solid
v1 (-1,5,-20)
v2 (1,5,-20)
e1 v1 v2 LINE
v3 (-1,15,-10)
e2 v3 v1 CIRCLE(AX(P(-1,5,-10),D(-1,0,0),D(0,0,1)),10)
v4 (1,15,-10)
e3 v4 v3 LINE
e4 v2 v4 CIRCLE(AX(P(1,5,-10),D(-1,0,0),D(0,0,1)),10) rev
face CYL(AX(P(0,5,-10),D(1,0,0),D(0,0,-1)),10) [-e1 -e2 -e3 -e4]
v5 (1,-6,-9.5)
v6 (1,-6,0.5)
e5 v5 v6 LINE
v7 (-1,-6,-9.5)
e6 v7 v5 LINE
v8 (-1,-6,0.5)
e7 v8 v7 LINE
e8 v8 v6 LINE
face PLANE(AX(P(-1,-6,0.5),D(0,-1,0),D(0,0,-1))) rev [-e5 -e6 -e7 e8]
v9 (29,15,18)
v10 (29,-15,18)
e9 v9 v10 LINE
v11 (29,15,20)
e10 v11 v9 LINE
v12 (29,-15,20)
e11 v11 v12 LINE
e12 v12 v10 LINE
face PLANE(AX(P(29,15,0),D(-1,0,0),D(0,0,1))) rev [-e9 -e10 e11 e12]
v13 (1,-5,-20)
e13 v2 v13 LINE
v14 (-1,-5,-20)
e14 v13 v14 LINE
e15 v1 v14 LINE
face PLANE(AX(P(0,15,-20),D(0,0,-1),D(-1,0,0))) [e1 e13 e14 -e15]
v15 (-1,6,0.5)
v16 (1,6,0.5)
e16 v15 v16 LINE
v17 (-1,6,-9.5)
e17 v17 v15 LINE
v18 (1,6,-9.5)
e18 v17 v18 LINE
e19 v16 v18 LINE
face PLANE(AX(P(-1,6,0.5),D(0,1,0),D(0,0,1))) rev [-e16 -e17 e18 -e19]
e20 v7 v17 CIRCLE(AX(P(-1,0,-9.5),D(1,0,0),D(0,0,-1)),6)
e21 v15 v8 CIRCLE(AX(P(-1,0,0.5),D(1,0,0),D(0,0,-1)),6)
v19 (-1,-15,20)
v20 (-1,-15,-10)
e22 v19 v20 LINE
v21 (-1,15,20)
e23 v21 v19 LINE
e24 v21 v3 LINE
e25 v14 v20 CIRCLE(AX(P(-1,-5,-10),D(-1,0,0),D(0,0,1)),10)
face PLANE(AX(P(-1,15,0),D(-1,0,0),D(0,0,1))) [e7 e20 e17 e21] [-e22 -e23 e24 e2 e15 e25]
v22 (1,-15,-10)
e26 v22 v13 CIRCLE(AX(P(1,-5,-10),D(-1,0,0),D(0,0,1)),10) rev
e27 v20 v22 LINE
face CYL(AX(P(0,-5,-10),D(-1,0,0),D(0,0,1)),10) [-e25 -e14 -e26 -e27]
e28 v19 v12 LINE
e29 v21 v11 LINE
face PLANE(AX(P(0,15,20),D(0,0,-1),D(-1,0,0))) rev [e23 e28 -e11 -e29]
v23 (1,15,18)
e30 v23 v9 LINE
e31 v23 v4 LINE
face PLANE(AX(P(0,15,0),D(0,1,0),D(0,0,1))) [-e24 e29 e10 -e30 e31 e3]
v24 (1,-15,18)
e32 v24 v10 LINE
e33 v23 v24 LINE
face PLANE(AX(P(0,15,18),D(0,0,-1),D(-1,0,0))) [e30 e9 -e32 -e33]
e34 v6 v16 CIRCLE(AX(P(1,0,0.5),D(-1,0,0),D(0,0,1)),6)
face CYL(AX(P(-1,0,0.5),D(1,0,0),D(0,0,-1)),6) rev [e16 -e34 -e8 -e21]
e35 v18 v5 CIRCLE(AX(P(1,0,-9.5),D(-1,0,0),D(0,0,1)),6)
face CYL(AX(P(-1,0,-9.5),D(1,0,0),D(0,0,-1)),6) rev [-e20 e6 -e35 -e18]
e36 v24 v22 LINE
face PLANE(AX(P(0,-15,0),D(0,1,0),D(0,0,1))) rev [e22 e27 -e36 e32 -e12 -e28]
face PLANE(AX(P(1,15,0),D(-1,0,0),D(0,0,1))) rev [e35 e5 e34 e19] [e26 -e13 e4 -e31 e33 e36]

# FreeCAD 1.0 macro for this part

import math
import FreeCAD as App
import Part
import Sketcher
from FreeCAD import Vector


def edges_at(feature, points):
    """Names of the edges that pass closest to the given points."""
    edges = feature.Shape.Edges
    near = lambda p: min(range(len(edges)), key=lambda i: edges[i].distToShape(Part.Vertex(*p))[0])
    return sorted({f"Edge{near(p) + 1}" for p in points})

doc = App.newDocument("Part")
body = doc.addObject("PartDesign::Body", "Body")

# Sketch on XZ plane
sketch1 = body.newObject("Sketcher::SketchObject", "Sketch")
sketch1.AttachmentSupport = (doc.getObject("XZ_Plane"), [""])
sketch1.MapMode = "FlatFace"
sketch1.addGeometry(Part.LineSegment(Vector(-1, -20, 0), Vector(-1, 20, 0)), False)
sketch1.addGeometry(Part.LineSegment(Vector(-1, 20, 0), Vector(29, 20, 0)), False)
sketch1.addGeometry(Part.LineSegment(Vector(29, 20, 0), Vector(29, 18, 0)), False)
sketch1.addGeometry(Part.LineSegment(Vector(29, 18, 0), Vector(1, 18, 0)), False)
sketch1.addGeometry(Part.LineSegment(Vector(1, 18, 0), Vector(1, -20, 0)), False)
sketch1.addGeometry(Part.LineSegment(Vector(1, -20, 0), Vector(-1, -20, 0)), False)
sketch1.addConstraint(Sketcher.Constraint("Coincident", 0, 2, 1, 1))
sketch1.addConstraint(Sketcher.Constraint("Coincident", 1, 2, 2, 1))
sketch1.addConstraint(Sketcher.Constraint("Coincident", 2, 2, 3, 1))
sketch1.addConstraint(Sketcher.Constraint("Coincident", 3, 2, 4, 1))
sketch1.addConstraint(Sketcher.Constraint("Coincident", 4, 2, 5, 1))
sketch1.addConstraint(Sketcher.Constraint("Coincident", 5, 2, 0, 1))
sketch1.addConstraint(Sketcher.Constraint("Vertical", 0))
sketch1.addConstraint(Sketcher.Constraint("Horizontal", 1))
sketch1.addConstraint(Sketcher.Constraint("Vertical", 2))
sketch1.addConstraint(Sketcher.Constraint("Horizontal", 3))
sketch1.addConstraint(Sketcher.Constraint("Vertical", 4))
sketch1.addConstraint(Sketcher.Constraint("Horizontal", 5))
sketch1.addConstraint(Sketcher.Constraint("Symmetric", 0, 2, 4, 2, -1, 1))
sketch1.addConstraint(Sketcher.Constraint("Equal", 5, 2))
sketch1.addConstraint(Sketcher.Constraint("DistanceX", 1, 1, 1, 2, 30.0))
sketch1.addConstraint(Sketcher.Constraint("DistanceX", 3, 2, 3, 1, 28.0))
sketch1.addConstraint(Sketcher.Constraint("DistanceY", 0, 1, 0, 2, 40.0))
pad1 = body.newObject("PartDesign::Pad", "Pad")
pad1.Profile = sketch1
pad1.Length = 30
pad1.Midplane = True
doc.recompute()

fillet = body.newObject("PartDesign::Fillet", "Fillet")
fillet.Base = (pad1, edges_at(pad1, [(0, 15, -20), (0, -15, -20)]))
fillet.Radius = 10

# Sketch on YZ plane
sketch2 = body.newObject("Sketcher::SketchObject", "Sketch001")
sketch2.AttachmentSupport = (doc.getObject("YZ_Plane"), [""])
sketch2.MapMode = "FlatFace"
sketch2.AttachmentOffset = App.Placement(Vector(0, 0, 1), App.Rotation())
sketch2.addGeometry(Part.LineSegment(Vector(6, -10, 0), Vector(6, 0, 0)), False)
sketch2.addGeometry(Part.ArcOfCircle(Part.Circle(Vector(0, 0, 0), Vector(0, 0, 1), 6), math.radians(0), math.radians(180)), False)
sketch2.addGeometry(Part.LineSegment(Vector(-6, 0, 0), Vector(-6, -10, 0)), False)
sketch2.addGeometry(Part.ArcOfCircle(Part.Circle(Vector(0, -10, 0), Vector(0, 0, 1), 6), math.radians(180), math.radians(360)), False)
sketch2.addConstraint(Sketcher.Constraint("Tangent", 0, 2, 1, 1))
sketch2.addConstraint(Sketcher.Constraint("Tangent", 1, 2, 2, 1))
sketch2.addConstraint(Sketcher.Constraint("Tangent", 2, 2, 3, 1))
sketch2.addConstraint(Sketcher.Constraint("Tangent", 3, 2, 0, 1))
sketch2.addConstraint(Sketcher.Constraint("Vertical", 0))
sketch2.addConstraint(Sketcher.Constraint("Vertical", 2))
sketch2.addConstraint(Sketcher.Constraint("PointOnObject", 1, 3, -2))
sketch2.addConstraint(Sketcher.Constraint("Radius", 1, 6.0))
sketch2.addConstraint(Sketcher.Constraint("DistanceY", 0, 1, 0, 2, 10.0))
sketch2.addConstraint(Sketcher.Constraint("DistanceY", -1, 1, 1, 3, 0.5))
pocket1 = body.newObject("PartDesign::Pocket", "Pocket")
pocket1.Profile = sketch2
pocket1.Type = "ThroughAll"
pocket1.Midplane = True

doc.recompute()
